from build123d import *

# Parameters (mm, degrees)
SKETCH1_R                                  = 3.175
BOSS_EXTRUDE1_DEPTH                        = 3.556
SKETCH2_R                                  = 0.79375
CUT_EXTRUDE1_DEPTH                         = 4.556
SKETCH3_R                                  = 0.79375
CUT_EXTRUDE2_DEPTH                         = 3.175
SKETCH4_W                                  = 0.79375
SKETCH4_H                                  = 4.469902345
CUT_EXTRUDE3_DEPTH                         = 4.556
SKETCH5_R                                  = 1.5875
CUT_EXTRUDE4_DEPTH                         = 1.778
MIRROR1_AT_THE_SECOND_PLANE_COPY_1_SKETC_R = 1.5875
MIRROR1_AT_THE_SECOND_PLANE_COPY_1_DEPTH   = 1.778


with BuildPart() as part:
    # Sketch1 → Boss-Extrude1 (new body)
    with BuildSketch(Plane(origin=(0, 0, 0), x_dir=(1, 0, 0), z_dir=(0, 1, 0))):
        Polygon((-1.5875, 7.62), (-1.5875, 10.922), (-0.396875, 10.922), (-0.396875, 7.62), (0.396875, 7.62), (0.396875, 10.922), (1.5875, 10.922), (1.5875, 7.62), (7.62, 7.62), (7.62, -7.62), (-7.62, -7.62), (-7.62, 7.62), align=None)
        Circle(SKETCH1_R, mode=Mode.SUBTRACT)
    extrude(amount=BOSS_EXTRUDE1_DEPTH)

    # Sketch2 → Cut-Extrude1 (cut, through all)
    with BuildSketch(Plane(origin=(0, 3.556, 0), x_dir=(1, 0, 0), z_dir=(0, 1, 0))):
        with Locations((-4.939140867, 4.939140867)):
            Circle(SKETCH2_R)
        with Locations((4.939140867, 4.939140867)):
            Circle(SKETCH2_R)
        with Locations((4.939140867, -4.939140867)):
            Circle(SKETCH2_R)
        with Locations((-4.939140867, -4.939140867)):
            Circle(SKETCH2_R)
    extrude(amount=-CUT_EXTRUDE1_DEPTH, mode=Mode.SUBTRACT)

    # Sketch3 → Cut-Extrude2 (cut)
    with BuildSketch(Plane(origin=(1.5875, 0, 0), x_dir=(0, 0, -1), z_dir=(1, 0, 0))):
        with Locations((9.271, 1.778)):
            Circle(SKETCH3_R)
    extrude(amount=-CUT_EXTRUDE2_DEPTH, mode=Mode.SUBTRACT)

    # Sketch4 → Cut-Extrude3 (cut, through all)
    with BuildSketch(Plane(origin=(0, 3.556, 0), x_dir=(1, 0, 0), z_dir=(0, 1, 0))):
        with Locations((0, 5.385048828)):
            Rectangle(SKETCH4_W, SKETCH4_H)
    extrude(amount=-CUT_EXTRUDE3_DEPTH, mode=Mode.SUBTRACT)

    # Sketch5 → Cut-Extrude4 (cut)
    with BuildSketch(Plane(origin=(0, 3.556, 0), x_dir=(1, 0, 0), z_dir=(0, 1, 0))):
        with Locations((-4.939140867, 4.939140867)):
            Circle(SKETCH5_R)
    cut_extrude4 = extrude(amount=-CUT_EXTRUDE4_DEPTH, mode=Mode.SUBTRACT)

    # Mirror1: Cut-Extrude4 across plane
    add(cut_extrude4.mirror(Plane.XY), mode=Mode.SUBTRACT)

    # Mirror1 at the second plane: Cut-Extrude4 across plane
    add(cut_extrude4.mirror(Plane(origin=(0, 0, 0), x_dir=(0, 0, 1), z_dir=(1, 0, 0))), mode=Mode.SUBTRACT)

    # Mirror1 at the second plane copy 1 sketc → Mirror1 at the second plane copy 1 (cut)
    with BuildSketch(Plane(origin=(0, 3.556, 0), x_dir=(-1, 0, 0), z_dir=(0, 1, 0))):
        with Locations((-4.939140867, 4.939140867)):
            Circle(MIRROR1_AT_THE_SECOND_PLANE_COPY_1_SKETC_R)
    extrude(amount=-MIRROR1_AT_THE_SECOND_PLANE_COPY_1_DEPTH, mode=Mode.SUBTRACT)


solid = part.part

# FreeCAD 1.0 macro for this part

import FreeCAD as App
import Part
import Sketcher
Q = App.Units.Quantity


def add_polygon(sketch, points):
    """Adds a closed chain of lines whose ends are joined by coincident constraints."""
    first, n = sketch.GeometryCount, len(points)
    for a, b in zip(points, points[1:] + points[:1]):
        sketch.addGeometry(Part.LineSegment(App.Vector(*a, 0), App.Vector(*b, 0)), False)
    for i in range(n):
        sketch.addConstraint(Sketcher.Constraint("Coincident", first + i, 2, first + (i + 1) % n, 1))

doc = App.newDocument("Part")
body = doc.addObject("PartDesign::Body", "Body")

sketch1 = body.newObject("Sketcher::SketchObject", "Sketch")
sketch1.AttachmentSupport = (doc.getObject("XZ_Plane"), [""])
sketch1.MapMode = "FlatFace"
add_polygon(sketch1, [(-1.6, -10.9), (-1.6, -7.6), (-7.6, -7.6), (-7.6, 7.6), (7.6, 7.6), (7.6, -7.6), (1.6, -7.6), (1.6, -10.9), (0.4, -10.9), (0.4, -7.6), (-0.4, -7.6), (-0.4, -10.9)])
sketch1.addGeometry(Part.Circle(App.Vector(0, 0, 0), App.Vector(0, 0, 1), 3.2), False)
sketch1.addConstraint([
    Sketcher.Constraint("Vertical", 0),
    Sketcher.Constraint("Horizontal", 1),
    Sketcher.Constraint("Vertical", 2),
    Sketcher.Constraint("Horizontal", 3),
    Sketcher.Constraint("Vertical", 4),
    Sketcher.Constraint("Horizontal", 5),
    Sketcher.Constraint("Vertical", 6),
    Sketcher.Constraint("Horizontal", 7),
    Sketcher.Constraint("Vertical", 8),
    Sketcher.Constraint("Horizontal", 9),
    Sketcher.Constraint("Vertical", 10),
    Sketcher.Constraint("Horizontal", 11),
    Sketcher.Constraint("Coincident", 12, 3, -1, 1),
    Sketcher.Constraint("Symmetric", 1, 2, 3, 2, -1, 1),
    Sketcher.Constraint("Symmetric", 0, 2, 5, 2, -2),
    Sketcher.Constraint("Symmetric", 7, 2, 10, 2, -2),
    Sketcher.Constraint("Horizontal", 5, 2, 8, 2),
    Sketcher.Constraint("Equal", 3, 2),
    Sketcher.Constraint("Diameter", 12, Q("0.25 in")),
    Sketcher.Constraint("DistanceX", 3, 1, 3, 2, Q("0.6 in")),
    Sketcher.Constraint("DistanceY", 0, 1, 0, 2, Q("0.13 in")),
    Sketcher.Constraint("DistanceX", 7, 2, 7, 1, Q("0.046875 in")),
    Sketcher.Constraint("DistanceX", 9, 2, 9, 1, Q("0.03125 in")),
])
pad1 = body.newObject("PartDesign::Pad", "Pad")
pad1.Profile = sketch1
pad1.Length = Q("0.14 in")
pad1.Reversed = True

sketch2 = body.newObject("Sketcher::SketchObject", "Sketch001")
sketch2.AttachmentSupport = (doc.getObject("XZ_Plane"), [""])
sketch2.MapMode = "FlatFace"
sketch2.AttachmentOffset = App.Placement(App.Vector(0, 0, -0.14 * 25.4), App.Rotation())
sketch2.addGeometry([
    Part.Circle(App.Vector(-4.9, -4.9, 0), App.Vector(0, 0, 1), 0.8),
    Part.Circle(App.Vector(4.9, -4.9, 0), App.Vector(0, 0, 1), 0.8),
    Part.Circle(App.Vector(4.9, 4.9, 0), App.Vector(0, 0, 1), 0.8),
    Part.Circle(App.Vector(-4.9, 4.9, 0), App.Vector(0, 0, 1), 0.8),
], False)
sketch2.addConstraint([
    Sketcher.Constraint("Equal", 0, 1),
    Sketcher.Constraint("Equal", 1, 2),
    Sketcher.Constraint("Equal", 2, 3),
    Sketcher.Constraint("Symmetric", 0, 3, 2, 3, -1, 1),
    Sketcher.Constraint("Symmetric", 1, 3, 3, 3, -1, 1),
    Sketcher.Constraint("Symmetric", 0, 3, 1, 3, -2),
    Sketcher.Constraint("Diameter", 0, Q("0.0625 in")),
    Sketcher.Constraint("DistanceX", 0, 3, -1, 1, 4.939141),
    Sketcher.Constraint("DistanceY", 0, 3, -1, 1, 4.939141),
])
pocket1 = body.newObject("PartDesign::Pocket", "Pocket")
pocket1.Profile = sketch2
pocket1.Type = "ThroughAll"
pocket1.Reversed = True

sketch3 = body.newObject("Sketcher::SketchObject", "Sketch002")
sketch3.AttachmentSupport = (doc.getObject("YZ_Plane"), [""])
sketch3.MapMode = "FlatFace"
sketch3.AttachmentOffset = App.Placement(App.Vector(0, 0, 0.0625 * 25.4), App.Rotation())
sketch3.addGeometry(Part.Circle(App.Vector(1.8, -9.3, 0), App.Vector(0, 0, 1), 0.8), False)
sketch3.addConstraint([
    Sketcher.Constraint("Diameter", 0, Q("0.0625 in")),
    Sketcher.Constraint("DistanceX", -1, 1, 0, 3, Q("0.07 in")),
    Sketcher.Constraint("DistanceY", 0, 3, -1, 1, Q("0.365 in")),
])
pocket2 = body.newObject("PartDesign::Pocket", "Pocket001")
pocket2.Profile = sketch3
pocket2.Length = Q("0.125 in")

sketch4 = body.newObject("Sketcher::SketchObject", "Sketch003")
sketch4.AttachmentSupport = (doc.getObject("XZ_Plane"), [""])
sketch4.MapMode = "FlatFace"
sketch4.AttachmentOffset = App.Placement(App.Vector(0, 0, -0.14 * 25.4), App.Rotation())
add_polygon(sketch4, [(-0.4, -7.6), (-0.4, -3.2), (0.4, -3.2), (0.4, -7.6)])
sketch4.addConstraint([
    Sketcher.Constraint("Vertical", 0),
    Sketcher.Constraint("Horizontal", 1),
    Sketcher.Constraint("Vertical", 2),
    Sketcher.Constraint("Horizontal", 3),
    Sketcher.Constraint("DistanceY", 2, 2, -1, 1, Q("0.3 in")),
    Sketcher.Constraint("DistanceX", 1, 1, 1, 2, Q("0.03125 in")),
    Sketcher.Constraint("DistanceX", 0, 2, -1, 1, Q("0.015625 in")),
    Sketcher.Constraint("DistanceY", 0, 1, 0, 2, 4.469902),
])
pocket3 = body.newObject("PartDesign::Pocket", "Pocket002")
pocket3.Profile = sketch4
pocket3.Type = "ThroughAll"
pocket3.Reversed = True

sketch5 = body.newObject("Sketcher::SketchObject", "Sketch004")
sketch5.AttachmentSupport = (doc.getObject("XZ_Plane"), [""])
sketch5.MapMode = "FlatFace"
sketch5.AttachmentOffset = App.Placement(App.Vector(0, 0, -0.14 * 25.4), App.Rotation())
sketch5.addGeometry(Part.Circle(App.Vector(-4.9, -4.9, 0), App.Vector(0, 0, 1), 1.6), False)
sketch5.addConstraint([
    Sketcher.Constraint("Diameter", 0, Q("0.125 in")),
    Sketcher.Constraint("DistanceX", 0, 3, -1, 1, 4.939141),
    Sketcher.Constraint("DistanceY", 0, 3, -1, 1, 4.939141),
])
pocket4 = body.newObject("PartDesign::Pocket", "Pocket003")
pocket4.Profile = sketch5
pocket4.Length = Q("0.07 in")
pocket4.Reversed = True
doc.recompute()

mirrored = body.newObject("PartDesign::Mirrored", "Mirrored")
mirrored.Originals = [pocket4]
mirrored.MirrorPlane = (doc.getObject("XY_Plane"), [""])
body.Tip = mirrored
doc.recompute()

mirrored2 = body.newObject("PartDesign::Mirrored", "Mirrored001")
mirrored2.Originals = [pocket4]
mirrored2.MirrorPlane = (doc.getObject("YZ_Plane"), [""])
body.Tip = mirrored2

sketch6 = body.newObject("Sketcher::SketchObject", "Sketch005")
sketch6.AttachmentSupport = (doc.getObject("XZ_Plane"), [""])
sketch6.MapMode = "FlatFace"
sketch6.AttachmentOffset = App.Placement(App.Vector(0, 0, -0.14 * 25.4), App.Rotation())
sketch6.addGeometry(Part.Circle(App.Vector(4.9, 4.9, 0), App.Vector(0, 0, 1), 1.6), False)
sketch6.addConstraint([
    Sketcher.Constraint("Diameter", 0, Q("0.125 in")),
    Sketcher.Constraint("DistanceX", -1, 1, 0, 3, 4.939141),
    Sketcher.Constraint("DistanceY", -1, 1, 0, 3, 4.939141),
])
pocket5 = body.newObject("PartDesign::Pocket", "Pocket004")
pocket5.Profile = sketch6
pocket5.Length = Q("0.07 in")
pocket5.Reversed = True

doc.recompute()
